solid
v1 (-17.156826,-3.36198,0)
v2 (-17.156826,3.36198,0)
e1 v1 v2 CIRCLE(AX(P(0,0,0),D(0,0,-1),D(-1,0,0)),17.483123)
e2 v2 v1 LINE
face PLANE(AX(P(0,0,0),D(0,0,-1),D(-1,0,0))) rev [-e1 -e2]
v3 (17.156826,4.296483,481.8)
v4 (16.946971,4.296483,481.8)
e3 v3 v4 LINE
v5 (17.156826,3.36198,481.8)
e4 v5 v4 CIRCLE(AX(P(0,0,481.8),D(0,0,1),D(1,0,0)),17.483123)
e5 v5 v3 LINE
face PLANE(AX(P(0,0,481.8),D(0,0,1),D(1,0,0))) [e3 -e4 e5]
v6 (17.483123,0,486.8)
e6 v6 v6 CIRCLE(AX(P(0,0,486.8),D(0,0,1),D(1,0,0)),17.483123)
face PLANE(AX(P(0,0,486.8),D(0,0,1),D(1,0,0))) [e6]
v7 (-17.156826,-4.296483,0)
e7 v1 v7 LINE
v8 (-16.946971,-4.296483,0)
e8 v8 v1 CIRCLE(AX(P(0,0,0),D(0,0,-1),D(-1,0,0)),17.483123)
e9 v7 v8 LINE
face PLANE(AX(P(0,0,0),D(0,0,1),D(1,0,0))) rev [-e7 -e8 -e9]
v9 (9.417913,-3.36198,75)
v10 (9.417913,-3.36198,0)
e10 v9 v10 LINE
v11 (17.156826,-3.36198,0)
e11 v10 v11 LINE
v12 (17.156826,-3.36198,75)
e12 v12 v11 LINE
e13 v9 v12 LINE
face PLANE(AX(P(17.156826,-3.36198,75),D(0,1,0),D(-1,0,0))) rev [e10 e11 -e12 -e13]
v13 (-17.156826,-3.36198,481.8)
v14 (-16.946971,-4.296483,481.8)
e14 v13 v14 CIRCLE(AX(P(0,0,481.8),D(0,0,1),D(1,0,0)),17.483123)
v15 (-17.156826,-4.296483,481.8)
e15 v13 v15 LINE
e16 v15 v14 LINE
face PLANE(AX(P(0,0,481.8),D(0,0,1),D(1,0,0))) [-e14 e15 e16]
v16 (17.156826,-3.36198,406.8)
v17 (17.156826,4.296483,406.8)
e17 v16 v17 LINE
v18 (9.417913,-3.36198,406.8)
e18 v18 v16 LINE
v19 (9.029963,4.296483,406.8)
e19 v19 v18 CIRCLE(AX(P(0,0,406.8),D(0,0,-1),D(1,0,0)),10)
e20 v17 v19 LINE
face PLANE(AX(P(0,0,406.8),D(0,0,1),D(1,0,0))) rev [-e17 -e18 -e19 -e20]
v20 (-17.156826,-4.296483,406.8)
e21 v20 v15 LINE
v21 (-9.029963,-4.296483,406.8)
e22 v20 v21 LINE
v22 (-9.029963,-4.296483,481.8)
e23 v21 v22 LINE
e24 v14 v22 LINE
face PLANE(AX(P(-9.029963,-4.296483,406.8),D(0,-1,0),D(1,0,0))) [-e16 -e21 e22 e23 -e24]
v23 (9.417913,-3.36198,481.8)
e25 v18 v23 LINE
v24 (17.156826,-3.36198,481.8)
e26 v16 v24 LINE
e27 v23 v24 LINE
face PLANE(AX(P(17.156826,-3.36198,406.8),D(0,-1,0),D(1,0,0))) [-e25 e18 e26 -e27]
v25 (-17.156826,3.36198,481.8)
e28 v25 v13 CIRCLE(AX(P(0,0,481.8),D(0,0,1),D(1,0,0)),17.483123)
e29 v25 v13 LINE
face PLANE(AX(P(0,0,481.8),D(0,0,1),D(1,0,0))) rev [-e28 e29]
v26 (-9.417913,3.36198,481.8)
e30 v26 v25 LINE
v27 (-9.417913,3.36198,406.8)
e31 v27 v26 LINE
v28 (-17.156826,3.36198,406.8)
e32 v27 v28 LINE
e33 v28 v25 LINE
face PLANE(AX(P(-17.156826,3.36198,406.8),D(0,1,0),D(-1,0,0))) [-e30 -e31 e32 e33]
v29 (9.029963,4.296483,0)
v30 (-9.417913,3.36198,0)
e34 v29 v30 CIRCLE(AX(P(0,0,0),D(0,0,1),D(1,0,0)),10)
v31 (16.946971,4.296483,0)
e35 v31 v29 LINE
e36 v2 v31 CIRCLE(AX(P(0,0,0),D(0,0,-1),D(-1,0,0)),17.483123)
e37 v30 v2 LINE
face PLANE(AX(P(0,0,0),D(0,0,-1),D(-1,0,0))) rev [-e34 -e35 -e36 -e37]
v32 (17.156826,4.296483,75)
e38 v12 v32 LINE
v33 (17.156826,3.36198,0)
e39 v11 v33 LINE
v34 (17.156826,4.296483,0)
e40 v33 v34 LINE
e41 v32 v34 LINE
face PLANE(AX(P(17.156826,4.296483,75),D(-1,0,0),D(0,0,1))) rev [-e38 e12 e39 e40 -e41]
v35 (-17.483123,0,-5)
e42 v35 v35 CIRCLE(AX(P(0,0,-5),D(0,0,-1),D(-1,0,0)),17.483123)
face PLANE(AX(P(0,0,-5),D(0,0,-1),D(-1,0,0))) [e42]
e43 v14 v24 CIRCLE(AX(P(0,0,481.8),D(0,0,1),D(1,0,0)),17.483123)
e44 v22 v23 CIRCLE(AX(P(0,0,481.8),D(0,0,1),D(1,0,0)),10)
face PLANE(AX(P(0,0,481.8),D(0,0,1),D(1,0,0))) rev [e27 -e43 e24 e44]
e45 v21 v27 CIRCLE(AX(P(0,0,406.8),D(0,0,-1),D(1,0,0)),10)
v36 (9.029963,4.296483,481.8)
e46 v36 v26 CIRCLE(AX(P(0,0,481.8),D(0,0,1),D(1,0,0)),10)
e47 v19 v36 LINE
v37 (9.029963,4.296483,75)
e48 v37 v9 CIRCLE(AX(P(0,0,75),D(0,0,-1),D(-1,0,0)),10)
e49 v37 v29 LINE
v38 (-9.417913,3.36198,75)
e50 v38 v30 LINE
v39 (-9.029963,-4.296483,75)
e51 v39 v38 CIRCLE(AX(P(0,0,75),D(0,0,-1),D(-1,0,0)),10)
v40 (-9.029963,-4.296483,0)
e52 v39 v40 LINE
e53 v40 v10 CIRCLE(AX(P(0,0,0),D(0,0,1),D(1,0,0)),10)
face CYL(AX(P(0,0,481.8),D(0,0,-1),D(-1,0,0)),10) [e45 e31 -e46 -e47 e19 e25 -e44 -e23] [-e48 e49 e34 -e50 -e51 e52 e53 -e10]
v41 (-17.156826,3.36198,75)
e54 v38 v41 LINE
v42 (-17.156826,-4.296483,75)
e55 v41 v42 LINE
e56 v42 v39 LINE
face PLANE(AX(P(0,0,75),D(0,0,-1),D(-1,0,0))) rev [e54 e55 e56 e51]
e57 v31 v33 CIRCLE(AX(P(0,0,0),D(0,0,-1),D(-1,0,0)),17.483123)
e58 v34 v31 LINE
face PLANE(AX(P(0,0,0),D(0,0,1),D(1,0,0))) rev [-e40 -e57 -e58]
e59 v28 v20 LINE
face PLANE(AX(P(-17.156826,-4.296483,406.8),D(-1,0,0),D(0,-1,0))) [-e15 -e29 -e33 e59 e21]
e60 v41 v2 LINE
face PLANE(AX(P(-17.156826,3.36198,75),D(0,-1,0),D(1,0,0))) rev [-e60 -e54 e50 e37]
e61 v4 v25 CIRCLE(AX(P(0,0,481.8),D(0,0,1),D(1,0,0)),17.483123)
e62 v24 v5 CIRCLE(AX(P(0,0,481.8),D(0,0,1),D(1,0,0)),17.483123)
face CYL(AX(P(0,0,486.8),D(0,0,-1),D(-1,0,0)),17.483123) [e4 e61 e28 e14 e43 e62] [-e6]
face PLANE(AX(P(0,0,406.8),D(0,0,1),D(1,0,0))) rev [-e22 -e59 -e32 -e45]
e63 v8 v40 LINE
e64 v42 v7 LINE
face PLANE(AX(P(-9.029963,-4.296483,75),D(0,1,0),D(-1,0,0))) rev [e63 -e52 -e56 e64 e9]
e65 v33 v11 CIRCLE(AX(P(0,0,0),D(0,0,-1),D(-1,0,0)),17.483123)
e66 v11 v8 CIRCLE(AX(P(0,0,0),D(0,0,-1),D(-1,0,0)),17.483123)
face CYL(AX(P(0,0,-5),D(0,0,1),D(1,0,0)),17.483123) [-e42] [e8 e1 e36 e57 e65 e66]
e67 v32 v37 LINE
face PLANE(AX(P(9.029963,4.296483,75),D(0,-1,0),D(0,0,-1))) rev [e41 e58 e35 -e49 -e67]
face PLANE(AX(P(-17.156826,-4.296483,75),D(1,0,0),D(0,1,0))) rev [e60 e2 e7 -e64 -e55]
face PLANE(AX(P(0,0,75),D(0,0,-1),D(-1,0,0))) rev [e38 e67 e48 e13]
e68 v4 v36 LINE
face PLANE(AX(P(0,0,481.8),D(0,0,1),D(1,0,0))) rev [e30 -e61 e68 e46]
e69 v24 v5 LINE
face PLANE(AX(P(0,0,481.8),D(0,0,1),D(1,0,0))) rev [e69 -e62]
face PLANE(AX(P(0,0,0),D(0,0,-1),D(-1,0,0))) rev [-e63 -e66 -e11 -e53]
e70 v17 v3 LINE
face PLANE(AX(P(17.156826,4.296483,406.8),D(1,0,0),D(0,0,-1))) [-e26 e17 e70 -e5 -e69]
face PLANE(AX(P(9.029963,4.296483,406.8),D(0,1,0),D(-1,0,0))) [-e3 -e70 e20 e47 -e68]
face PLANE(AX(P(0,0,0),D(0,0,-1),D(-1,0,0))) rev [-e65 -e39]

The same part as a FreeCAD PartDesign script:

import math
import FreeCAD as App
import Part
import Sketcher

doc = App.newDocument("Part")
body = doc.addObject("PartDesign::Body", "Body")

# Sketch on XY plane
sketch1 = body.newObject("Sketcher::SketchObject", "Sketch")
sketch1.AttachmentSupport = (doc.getObject("XY_Plane"), [""])
sketch1.MapMode = "FlatFace"
sketch1.addGeometry(Part.Circle(App.Vector(0, 0, 0), App.Vector(0, 0, 1), 10), False)
sketch1.addConstraint(Sketcher.Constraint("Coincident", 0, 3, -1, 1))
sketch1.addConstraint(Sketcher.Constraint("Diameter", 0, 20.0))
pad1 = body.newObject("PartDesign::Pad", "Pad")
pad1.Profile = sketch1
pad1.Length = 481.8

# Sketch on XY plane
sketch2 = body.newObject("Sketcher::SketchObject", "Sketch001")
sketch2.AttachmentSupport = (doc.getObject("XY_Plane"), [""])
sketch2.MapMode = "FlatFace"
sketch2.addGeometry(Part.LineSegment(App.Vector(17, 4, 0), App.Vector(9, 4, 0)), False)
sketch2.addGeometry(Part.ArcOfCircle(Part.Circle(App.Vector(0, 0, 0), App.Vector(0, 0, 1), 10), math.radians(-20), math.radians(25)), False)
sketch2.addGeometry(Part.LineSegment(App.Vector(9, -3, 0), App.Vector(17, -3, 0)), False)
sketch2.addGeometry(Part.LineSegment(App.Vector(17, -3, 0), App.Vector(17, 4, 0)), False)
sketch2.addGeometry(Part.LineSegment(App.Vector(-17, -4, 0), App.Vector(-9, -4, 0)), False)
sketch2.addGeometry(Part.ArcOfCircle(Part.Circle(App.Vector(0, 0, 0), App.Vector(0, 0, 1), 10), math.radians(160), math.radians(205)), False)
sketch2.addGeometry(Part.LineSegment(App.Vector(-9, 3, 0), App.Vector(-17, 3, 0)), False)
sketch2.addGeometry(Part.LineSegment(App.Vector(-17, 3, 0), App.Vector(-17, -4, 0)), False)
sketch2.addConstraint(Sketcher.Constraint("Coincident", 0, 2, 1, 2))
sketch2.addConstraint(Sketcher.Constraint("Coincident", 1, 1, 2, 1))
sketch2.addConstraint(Sketcher.Constraint("Coincident", 2, 2, 3, 1))
sketch2.addConstraint(Sketcher.Constraint("Coincident", 3, 2, 0, 1))
sketch2.addConstraint(Sketcher.Constraint("Coincident", 4, 2, 5, 2))
sketch2.addConstraint(Sketcher.Constraint("Coincident", 5, 1, 6, 1))
sketch2.addConstraint(Sketcher.Constraint("Coincident", 6, 2, 7, 1))
sketch2.addConstraint(Sketcher.Constraint("Coincident", 7, 2, 4, 1))
sketch2.addConstraint(Sketcher.Constraint("Horizontal", 0))
sketch2.addConstraint(Sketcher.Constraint("Horizontal", 2))
sketch2.addConstraint(Sketcher.Constraint("Vertical", 3))
sketch2.addConstraint(Sketcher.Constraint("Horizontal", 4))
sketch2.addConstraint(Sketcher.Constraint("Horizontal", 6))
sketch2.addConstraint(Sketcher.Constraint("Vertical", 7))
sketch2.addConstraint(Sketcher.Constraint("Coincident", 1, 3, -1, 1))
sketch2.addConstraint(Sketcher.Constraint("Coincident", 5, 3, -1, 1))
sketch2.addConstraint(Sketcher.Constraint("Equal", 1, 5))
sketch2.addConstraint(Sketcher.Constraint("Symmetric", 2, 2, 6, 2, -1, 1))
sketch2.addConstraint(Sketcher.Constraint("Equal", 0, 4))
sketch2.addConstraint(Sketcher.Constraint("Radius", 1, 10.0))
sketch2.addConstraint(Sketcher.Constraint("DistanceX", 0, 2, 0, 1, 8.126863))
sketch2.addConstraint(Sketcher.Constraint("DistanceX", 2, 1, 2, 2, 7.738913))
sketch2.addConstraint(Sketcher.Constraint("DistanceY", 3, 1, 3, 2, 7.658462))
pad2 = body.newObject("PartDesign::Pad", "Pad001")
pad2.Profile = sketch2
pad2.Length = 75

# Sketch on XY plane
sketch3 = body.newObject("Sketcher::SketchObject", "Sketch002")
sketch3.AttachmentSupport = (doc.getObject("XY_Plane"), [""])
sketch3.MapMode = "FlatFace"
sketch3.AttachmentOffset = App.Placement(App.Vector(0, 0, 406.8), App.Rotation())
sketch3.addGeometry(Part.LineSegment(App.Vector(17, 4, 0), App.Vector(9, 4, 0)), False)
sketch3.addGeometry(Part.ArcOfCircle(Part.Circle(App.Vector(0, 0, 0), App.Vector(0, 0, 1), 10), math.radians(-20), math.radians(25)), False)
sketch3.addGeometry(Part.LineSegment(App.Vector(9, -3, 0), App.Vector(17, -3, 0)), False)
sketch3.addGeometry(Part.LineSegment(App.Vector(17, -3, 0), App.Vector(17, 4, 0)), False)
sketch3.addGeometry(Part.LineSegment(App.Vector(-17, -4, 0), App.Vector(-9, -4, 0)), False)
sketch3.addGeometry(Part.ArcOfCircle(Part.Circle(App.Vector(0, 0, 0), App.Vector(0, 0, 1), 10), math.radians(160), math.radians(205)), False)
sketch3.addGeometry(Part.LineSegment(App.Vector(-9, 3, 0), App.Vector(-17, 3, 0)), False)
sketch3.addGeometry(Part.LineSegment(App.Vector(-17, 3, 0), App.Vector(-17, -4, 0)), False)
sketch3.addConstraint(Sketcher.Constraint("Coincident", 0, 2, 1, 2))
sketch3.addConstraint(Sketcher.Constraint("Coincident", 1, 1, 2, 1))
sketch3.addConstraint(Sketcher.Constraint("Coincident", 2, 2, 3, 1))
sketch3.addConstraint(Sketcher.Constraint("Coincident", 3, 2, 0, 1))
sketch3.addConstraint(Sketcher.Constraint("Coincident", 4, 2, 5, 2))
sketch3.addConstraint(Sketcher.Constraint("Coincident", 5, 1, 6, 1))
sketch3.addConstraint(Sketcher.Constraint("Coincident", 6, 2, 7, 1))
sketch3.addConstraint(Sketcher.Constraint("Coincident", 7, 2, 4, 1))
sketch3.addConstraint(Sketcher.Constraint("Horizontal", 0))
sketch3.addConstraint(Sketcher.Constraint("Horizontal", 2))
sketch3.addConstraint(Sketcher.Constraint("Vertical", 3))
sketch3.addConstraint(Sketcher.Constraint("Horizontal", 4))
sketch3.addConstraint(Sketcher.Constraint("Horizontal", 6))
sketch3.addConstraint(Sketcher.Constraint("Vertical", 7))
sketch3.addConstraint(Sketcher.Constraint("Coincident", 1, 3, -1, 1))
sketch3.addConstraint(Sketcher.Constraint("Coincident", 5, 3, -1, 1))
sketch3.addConstraint(Sketcher.Constraint("Equal", 1, 5))
sketch3.addConstraint(Sketcher.Constraint("Symmetric", 2, 2, 6, 2, -1, 1))
sketch3.addConstraint(Sketcher.Constraint("Equal", 0, 4))
sketch3.addConstraint(Sketcher.Constraint("Radius", 1, 10.0))
sketch3.addConstraint(Sketcher.Constraint("DistanceX", 0, 2, 0, 1, 8.126863))
sketch3.addConstraint(Sketcher.Constraint("DistanceX", 2, 1, 2, 2, 7.738913))
sketch3.addConstraint(Sketcher.Constraint("DistanceY", 3, 1, 3, 2, 7.658462))
pad3 = body.newObject("PartDesign::Pad", "Pad002")
pad3.Profile = sketch3
pad3.Length = 75

# Sketch on XY plane
sketch4 = body.newObject("Sketcher::SketchObject", "Sketch003")
sketch4.AttachmentSupport = (doc.getObject("XY_Plane"), [""])
sketch4.MapMode = "FlatFace"
sketch4.AttachmentOffset = App.Placement(App.Vector(0, 0, 481.8), App.Rotation())
sketch4.addGeometry(Part.Circle(App.Vector(0, 0, 0), App.Vector(0, 0, 1), 17), False)
sketch4.addConstraint(Sketcher.Constraint("Coincident", 0, 3, -1, 1))
sketch4.addConstraint(Sketcher.Constraint("Diameter", 0, 34.966247))
pad4 = body.newObject("PartDesign::Pad", "Pad003")
pad4.Profile = sketch4
pad4.Length = 5

# Sketch on XY plane
sketch5 = body.newObject("Sketcher::SketchObject", "Sketch004")
sketch5.AttachmentSupport = (doc.getObject("XY_Plane"), [""])
sketch5.MapMode = "FlatFace"
sketch5.AttachmentOffset = App.Placement(App.Vector(0, 0, -5), App.Rotation())
sketch5.addGeometry(Part.Circle(App.Vector(0, 0, 0), App.Vector(0, 0, 1), 17), False)
sketch5.addConstraint(Sketcher.Constraint("Coincident", 0, 3, -1, 1))
sketch5.addConstraint(Sketcher.Constraint("Diameter", 0, 34.966247))
pad5 = body.newObject("PartDesign::Pad", "Pad004")
pad5.Profile = sketch5
pad5.Length = 5

doc.recompute()
